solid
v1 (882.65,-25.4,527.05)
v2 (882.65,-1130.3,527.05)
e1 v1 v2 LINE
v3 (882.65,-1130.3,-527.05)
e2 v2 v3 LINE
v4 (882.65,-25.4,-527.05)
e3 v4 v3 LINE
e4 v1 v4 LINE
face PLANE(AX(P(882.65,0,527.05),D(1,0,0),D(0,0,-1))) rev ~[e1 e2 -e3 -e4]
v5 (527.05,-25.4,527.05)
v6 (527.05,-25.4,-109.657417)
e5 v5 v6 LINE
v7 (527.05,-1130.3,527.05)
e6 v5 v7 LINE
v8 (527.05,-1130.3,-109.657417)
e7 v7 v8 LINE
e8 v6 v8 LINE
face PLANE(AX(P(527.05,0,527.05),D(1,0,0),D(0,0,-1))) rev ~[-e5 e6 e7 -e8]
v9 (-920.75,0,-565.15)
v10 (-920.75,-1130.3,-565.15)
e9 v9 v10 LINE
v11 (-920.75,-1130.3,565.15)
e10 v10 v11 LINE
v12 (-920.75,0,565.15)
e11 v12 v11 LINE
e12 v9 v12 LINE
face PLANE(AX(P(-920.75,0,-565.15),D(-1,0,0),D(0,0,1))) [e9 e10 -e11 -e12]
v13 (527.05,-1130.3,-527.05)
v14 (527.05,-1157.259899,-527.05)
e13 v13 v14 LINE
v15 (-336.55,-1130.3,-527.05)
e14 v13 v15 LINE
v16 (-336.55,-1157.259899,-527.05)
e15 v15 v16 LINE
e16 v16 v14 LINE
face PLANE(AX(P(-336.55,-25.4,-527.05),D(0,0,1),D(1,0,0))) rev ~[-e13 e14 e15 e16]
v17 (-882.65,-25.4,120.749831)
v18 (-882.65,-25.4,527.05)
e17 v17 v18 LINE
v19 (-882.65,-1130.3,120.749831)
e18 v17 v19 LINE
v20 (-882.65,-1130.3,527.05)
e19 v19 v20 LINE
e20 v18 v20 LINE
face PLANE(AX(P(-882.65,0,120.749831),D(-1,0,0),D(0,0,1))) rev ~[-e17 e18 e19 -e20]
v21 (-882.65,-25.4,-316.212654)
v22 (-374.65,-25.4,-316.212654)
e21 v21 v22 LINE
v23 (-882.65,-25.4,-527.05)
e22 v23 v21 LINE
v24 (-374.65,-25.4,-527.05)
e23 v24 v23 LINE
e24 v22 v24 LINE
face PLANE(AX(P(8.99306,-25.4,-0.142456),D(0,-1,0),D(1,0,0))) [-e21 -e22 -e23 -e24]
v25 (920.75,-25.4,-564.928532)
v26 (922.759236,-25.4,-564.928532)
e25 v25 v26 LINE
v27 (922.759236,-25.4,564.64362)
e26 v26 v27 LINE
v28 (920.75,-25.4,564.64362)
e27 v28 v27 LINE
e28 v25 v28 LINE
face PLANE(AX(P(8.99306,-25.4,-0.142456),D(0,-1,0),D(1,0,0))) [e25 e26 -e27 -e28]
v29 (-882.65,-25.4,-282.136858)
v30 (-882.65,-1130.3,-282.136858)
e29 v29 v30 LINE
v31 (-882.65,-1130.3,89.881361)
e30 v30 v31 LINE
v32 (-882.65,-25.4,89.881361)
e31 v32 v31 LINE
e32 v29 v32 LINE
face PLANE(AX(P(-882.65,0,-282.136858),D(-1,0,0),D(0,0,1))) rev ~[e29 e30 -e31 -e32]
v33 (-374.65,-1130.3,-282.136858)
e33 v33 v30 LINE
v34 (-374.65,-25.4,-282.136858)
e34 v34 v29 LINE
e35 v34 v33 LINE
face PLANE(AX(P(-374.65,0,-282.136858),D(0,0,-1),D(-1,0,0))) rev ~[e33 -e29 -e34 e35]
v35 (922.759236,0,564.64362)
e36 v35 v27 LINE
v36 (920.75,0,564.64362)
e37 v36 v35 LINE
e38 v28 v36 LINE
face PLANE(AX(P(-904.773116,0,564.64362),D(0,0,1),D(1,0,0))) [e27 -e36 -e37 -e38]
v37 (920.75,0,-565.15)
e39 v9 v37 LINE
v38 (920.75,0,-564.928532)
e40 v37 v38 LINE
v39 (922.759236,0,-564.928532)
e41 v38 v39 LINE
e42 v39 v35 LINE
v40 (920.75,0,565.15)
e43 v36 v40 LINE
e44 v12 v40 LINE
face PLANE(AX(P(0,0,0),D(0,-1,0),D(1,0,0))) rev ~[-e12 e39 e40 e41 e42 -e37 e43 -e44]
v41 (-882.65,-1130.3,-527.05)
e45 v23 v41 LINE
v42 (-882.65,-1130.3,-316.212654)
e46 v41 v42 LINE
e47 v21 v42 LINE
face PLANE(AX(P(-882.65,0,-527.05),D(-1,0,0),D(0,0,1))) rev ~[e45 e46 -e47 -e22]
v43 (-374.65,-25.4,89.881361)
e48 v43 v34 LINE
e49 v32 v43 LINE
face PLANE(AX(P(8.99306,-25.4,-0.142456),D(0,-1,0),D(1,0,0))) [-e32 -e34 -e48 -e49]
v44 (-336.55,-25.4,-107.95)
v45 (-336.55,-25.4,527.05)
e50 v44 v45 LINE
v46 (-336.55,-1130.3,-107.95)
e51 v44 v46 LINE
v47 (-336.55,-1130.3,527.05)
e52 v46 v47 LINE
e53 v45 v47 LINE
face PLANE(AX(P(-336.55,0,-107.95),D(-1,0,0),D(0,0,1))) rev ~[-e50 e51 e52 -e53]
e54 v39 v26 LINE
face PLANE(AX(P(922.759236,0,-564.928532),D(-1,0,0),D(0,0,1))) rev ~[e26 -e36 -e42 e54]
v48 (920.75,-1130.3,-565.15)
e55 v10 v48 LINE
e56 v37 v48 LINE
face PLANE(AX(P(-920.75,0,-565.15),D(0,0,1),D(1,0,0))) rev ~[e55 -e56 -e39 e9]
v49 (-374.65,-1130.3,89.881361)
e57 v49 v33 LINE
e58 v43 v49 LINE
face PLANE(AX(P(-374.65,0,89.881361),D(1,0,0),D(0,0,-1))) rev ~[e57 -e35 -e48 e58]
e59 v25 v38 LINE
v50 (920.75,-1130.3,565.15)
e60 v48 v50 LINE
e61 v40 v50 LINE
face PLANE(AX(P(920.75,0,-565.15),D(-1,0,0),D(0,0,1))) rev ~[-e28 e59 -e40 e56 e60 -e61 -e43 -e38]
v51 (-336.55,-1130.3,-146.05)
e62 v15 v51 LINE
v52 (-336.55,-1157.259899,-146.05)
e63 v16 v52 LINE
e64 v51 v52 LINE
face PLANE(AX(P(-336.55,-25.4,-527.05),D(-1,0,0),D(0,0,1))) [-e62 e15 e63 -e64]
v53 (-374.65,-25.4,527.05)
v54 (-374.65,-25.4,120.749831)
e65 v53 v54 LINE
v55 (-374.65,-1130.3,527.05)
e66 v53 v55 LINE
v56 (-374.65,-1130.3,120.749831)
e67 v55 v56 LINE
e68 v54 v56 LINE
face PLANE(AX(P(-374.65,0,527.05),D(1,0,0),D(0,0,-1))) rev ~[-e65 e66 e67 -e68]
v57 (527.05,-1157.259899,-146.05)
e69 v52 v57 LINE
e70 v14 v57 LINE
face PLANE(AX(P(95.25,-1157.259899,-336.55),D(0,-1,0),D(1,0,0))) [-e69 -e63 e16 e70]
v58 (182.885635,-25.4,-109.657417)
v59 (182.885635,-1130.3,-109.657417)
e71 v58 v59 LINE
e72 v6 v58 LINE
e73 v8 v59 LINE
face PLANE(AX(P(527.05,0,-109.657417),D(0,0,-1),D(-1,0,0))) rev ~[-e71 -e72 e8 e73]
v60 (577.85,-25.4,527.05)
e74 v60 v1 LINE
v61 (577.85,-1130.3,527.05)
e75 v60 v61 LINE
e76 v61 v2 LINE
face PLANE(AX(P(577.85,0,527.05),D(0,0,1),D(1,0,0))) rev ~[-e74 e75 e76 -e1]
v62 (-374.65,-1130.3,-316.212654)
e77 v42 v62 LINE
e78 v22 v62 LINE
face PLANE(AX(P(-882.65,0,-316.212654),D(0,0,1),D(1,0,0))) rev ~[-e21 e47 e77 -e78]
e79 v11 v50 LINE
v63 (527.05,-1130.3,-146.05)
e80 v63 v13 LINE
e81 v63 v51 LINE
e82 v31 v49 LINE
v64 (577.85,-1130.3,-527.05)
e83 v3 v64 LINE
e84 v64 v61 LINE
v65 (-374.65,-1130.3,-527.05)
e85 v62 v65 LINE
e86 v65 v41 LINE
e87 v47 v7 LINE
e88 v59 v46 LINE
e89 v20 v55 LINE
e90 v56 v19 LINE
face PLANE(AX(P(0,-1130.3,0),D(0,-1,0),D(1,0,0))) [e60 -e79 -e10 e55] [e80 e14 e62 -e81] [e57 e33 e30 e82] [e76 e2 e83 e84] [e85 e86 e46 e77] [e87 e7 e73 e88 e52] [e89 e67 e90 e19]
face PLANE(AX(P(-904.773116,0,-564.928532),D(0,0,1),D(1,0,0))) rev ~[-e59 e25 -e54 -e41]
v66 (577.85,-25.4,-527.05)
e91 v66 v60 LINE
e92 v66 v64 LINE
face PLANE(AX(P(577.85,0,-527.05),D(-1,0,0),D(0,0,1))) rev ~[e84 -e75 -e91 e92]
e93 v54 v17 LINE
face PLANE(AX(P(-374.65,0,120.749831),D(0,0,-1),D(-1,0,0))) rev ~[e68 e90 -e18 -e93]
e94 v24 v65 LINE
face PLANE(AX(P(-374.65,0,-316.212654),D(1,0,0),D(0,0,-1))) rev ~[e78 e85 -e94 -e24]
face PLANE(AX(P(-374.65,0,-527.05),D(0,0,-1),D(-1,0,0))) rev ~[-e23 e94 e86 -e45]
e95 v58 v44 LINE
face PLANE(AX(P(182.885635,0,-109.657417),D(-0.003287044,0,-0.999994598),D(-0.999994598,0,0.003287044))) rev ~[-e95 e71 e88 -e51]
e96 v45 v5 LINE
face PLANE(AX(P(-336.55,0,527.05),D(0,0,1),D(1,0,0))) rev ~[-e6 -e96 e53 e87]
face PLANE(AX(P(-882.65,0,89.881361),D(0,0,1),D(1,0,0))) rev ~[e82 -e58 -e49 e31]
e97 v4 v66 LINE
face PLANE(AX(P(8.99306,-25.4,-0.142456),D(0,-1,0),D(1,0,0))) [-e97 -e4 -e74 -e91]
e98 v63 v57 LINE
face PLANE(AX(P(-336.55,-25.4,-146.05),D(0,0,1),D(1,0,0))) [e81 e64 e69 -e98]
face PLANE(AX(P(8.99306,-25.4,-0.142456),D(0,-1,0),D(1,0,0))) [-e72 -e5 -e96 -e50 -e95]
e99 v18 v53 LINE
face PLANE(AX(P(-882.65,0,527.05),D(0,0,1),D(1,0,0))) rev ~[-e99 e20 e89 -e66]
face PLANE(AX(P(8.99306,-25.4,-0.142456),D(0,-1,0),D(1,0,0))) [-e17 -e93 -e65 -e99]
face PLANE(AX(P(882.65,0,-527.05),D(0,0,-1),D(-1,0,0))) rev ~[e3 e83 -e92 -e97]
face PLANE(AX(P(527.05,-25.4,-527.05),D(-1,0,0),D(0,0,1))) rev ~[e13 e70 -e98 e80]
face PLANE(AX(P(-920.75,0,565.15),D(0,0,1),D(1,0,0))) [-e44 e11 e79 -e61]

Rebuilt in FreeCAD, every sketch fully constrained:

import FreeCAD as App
import Part
import Sketcher

V = App.Vector
Q = App.Units.Quantity

doc = App.newDocument("Part")
body = doc.addObject("PartDesign::Body", "Body")

# Sketch on XZ plane
sketch1 = body.newObject("Sketcher::SketchObject", "Sketch")
sketch1.AttachmentSupport = (doc.getObject("XZ_Plane"), [""])
sketch1.MapMode = "FlatFace"
sketch1.addGeometry([
    Part.LineSegment(V(-920.75, 565.15, 0), V(-920.75, -565.15, 0)),  # 0
    Part.LineSegment(V(-920.75, -565.15, 0), V(920.75, -565.15, 0)),  # 1
    Part.LineSegment(V(920.75, -565.15, 0), V(920.75, 565.15, 0)),  # 2
    Part.LineSegment(V(920.75, 565.15, 0), V(-920.75, 565.15, 0)),  # 3
    Part.LineSegment(V(-882.65, 527.05, 0), V(-374.65, 527.05, 0)),  # 4
    Part.LineSegment(V(-374.65, 527.05, 0), V(-374.65, 120.749831, 0)),  # 5
    Part.LineSegment(V(-374.65, 120.749831, 0), V(-882.65, 120.749831, 0)),  # 6
    Part.LineSegment(V(-882.65, 120.749831, 0), V(-882.65, 527.05, 0)),  # 7
    Part.LineSegment(V(-374.65, 89.881361, 0), V(-374.65, -282.136858, 0)),  # 8
    Part.LineSegment(V(-374.65, -282.136858, 0), V(-882.65, -282.136858, 0)),  # 9
    Part.LineSegment(V(-882.65, -282.136858, 0), V(-882.65, 89.881361, 0)),  # 10
    Part.LineSegment(V(-882.65, 89.881361, 0), V(-374.65, 89.881361, 0)),  # 11
    Part.LineSegment(V(-374.65, -316.212654, 0), V(-374.65, -527.05, 0)),  # 12
    Part.LineSegment(V(-374.65, -527.05, 0), V(-882.65, -527.05, 0)),  # 13
    Part.LineSegment(V(-882.65, -527.05, 0), V(-882.65, -316.212654, 0)),  # 14
    Part.LineSegment(V(-882.65, -316.212654, 0), V(-374.65, -316.212654, 0)),  # 15
    Part.LineSegment(V(-336.55, 527.05, 0), V(527.05, 527.05, 0)),  # 16
    Part.LineSegment(V(527.05, 527.05, 0), V(527.05, -109.657417, 0)),  # 17
    Part.LineSegment(V(527.05, -109.657417, 0), V(182.885635, -109.657417, 0)),  # 18
    Part.LineSegment(V(182.885635, -109.657417, 0), V(-336.55, -107.95, 0)),  # 19
    Part.LineSegment(V(-336.55, -107.95, 0), V(-336.55, 527.05, 0)),  # 20
    Part.LineSegment(V(577.85, 527.05, 0), V(882.65, 527.05, 0)),  # 21
    Part.LineSegment(V(882.65, 527.05, 0), V(882.65, -527.05, 0)),  # 22
    Part.LineSegment(V(882.65, -527.05, 0), V(577.85, -527.05, 0)),  # 23
    Part.LineSegment(V(577.85, -527.05, 0), V(577.85, 527.05, 0)),  # 24
    Part.LineSegment(V(527.05, -527.05, 0), V(-336.55, -527.05, 0)),  # 25
    Part.LineSegment(V(-336.55, -527.05, 0), V(-336.55, -146.05, 0)),  # 26
    Part.LineSegment(V(-336.55, -146.05, 0), V(182.885635, -147.757417, 0)),  # 27
    Part.LineSegment(V(182.885635, -147.757417, 0), V(527.05, -148.888707, 0)),  # 28
    Part.LineSegment(V(527.05, -148.888707, 0), V(527.05, -527.05, 0)),  # 29
], False)
sketch1.addConstraint([
    Sketcher.Constraint("Coincident", 0, 2, 1, 1),
    Sketcher.Constraint("Coincident", 1, 2, 2, 1),
    Sketcher.Constraint("Coincident", 2, 2, 3, 1),
    Sketcher.Constraint("Coincident", 3, 2, 0, 1),
    Sketcher.Constraint("Coincident", 4, 2, 5, 1),
    Sketcher.Constraint("Coincident", 5, 2, 6, 1),
    Sketcher.Constraint("Coincident", 6, 2, 7, 1),
    Sketcher.Constraint("Coincident", 7, 2, 4, 1),
    Sketcher.Constraint("Coincident", 8, 2, 9, 1),
    Sketcher.Constraint("Coincident", 9, 2, 10, 1),
    Sketcher.Constraint("Coincident", 10, 2, 11, 1),
    Sketcher.Constraint("Coincident", 11, 2, 8, 1),
    Sketcher.Constraint("Coincident", 12, 2, 13, 1),
    Sketcher.Constraint("Coincident", 13, 2, 14, 1),
    Sketcher.Constraint("Coincident", 14, 2, 15, 1),
    Sketcher.Constraint("Coincident", 15, 2, 12, 1),
    Sketcher.Constraint("Coincident", 16, 2, 17, 1),
    Sketcher.Constraint("Coincident", 17, 2, 18, 1),
    Sketcher.Constraint("Coincident", 18, 2, 19, 1),
    Sketcher.Constraint("Coincident", 19, 2, 20, 1),
    Sketcher.Constraint("Coincident", 20, 2, 16, 1),
    Sketcher.Constraint("Coincident", 21, 2, 22, 1),
    Sketcher.Constraint("Coincident", 22, 2, 23, 1),
    Sketcher.Constraint("Coincident", 23, 2, 24, 1),
    Sketcher.Constraint("Coincident", 24, 2, 21, 1),
    Sketcher.Constraint("Coincident", 25, 2, 26, 1),
    Sketcher.Constraint("Coincident", 26, 2, 27, 1),
    Sketcher.Constraint("Coincident", 27, 2, 28, 1),
    Sketcher.Constraint("Coincident", 28, 2, 29, 1),
    Sketcher.Constraint("Coincident", 29, 2, 25, 1),
    Sketcher.Constraint("Vertical", 0),
    Sketcher.Constraint("Horizontal", 1),
    Sketcher.Constraint("Vertical", 2),
    Sketcher.Constraint("Horizontal", 3),
    Sketcher.Constraint("Horizontal", 4),
    Sketcher.Constraint("Vertical", 5),
    Sketcher.Constraint("Horizontal", 6),
    Sketcher.Constraint("Vertical", 7),
    Sketcher.Constraint("Vertical", 8),
    Sketcher.Constraint("Horizontal", 9),
    Sketcher.Constraint("Vertical", 10),
    Sketcher.Constraint("Horizontal", 11),
    Sketcher.Constraint("Vertical", 12),
    Sketcher.Constraint("Horizontal", 13),
    Sketcher.Constraint("Vertical", 14),
    Sketcher.Constraint("Horizontal", 15),
    Sketcher.Constraint("Horizontal", 16),
    Sketcher.Constraint("Vertical", 17),
    Sketcher.Constraint("Horizontal", 18),
    Sketcher.Constraint("Vertical", 20),
    Sketcher.Constraint("Horizontal", 21),
    Sketcher.Constraint("Vertical", 22),
    Sketcher.Constraint("Horizontal", 23),
    Sketcher.Constraint("Vertical", 24),
    Sketcher.Constraint("Horizontal", 25),
    Sketcher.Constraint("Vertical", 26),
    Sketcher.Constraint("Vertical", 29),
    Sketcher.Constraint("Symmetric", 0, 2, 2, 2, -1, 1),
    Sketcher.Constraint("Symmetric", 13, 2, 21, 2, -1, 1),
    Sketcher.Constraint("Symmetric", 7, 2, 22, 2, -1, 1),
    Sketcher.Constraint("Symmetric", 4, 2, 12, 2, -1),
    Sketcher.Constraint("Symmetric", 20, 2, 25, 2, -1),
    Sketcher.Constraint("Parallel", 19, 27),
    Sketcher.Constraint("Parallel", 27, 28),
    Sketcher.Constraint("Horizontal", 7, 2, 16, 2),
    Sketcher.Constraint("Vertical", 5, 2, 8, 2),
    Sketcher.Constraint("Vertical", 7, 2, 9, 2),
    Sketcher.Constraint("Vertical", 18, 2, 27, 2),
    Sketcher.Constraint("Vertical", 17, 2, 28, 2),
    Sketcher.Constraint("DistanceX", 4, 1, 4, 2, Q("20 in")),
    Sketcher.Constraint("DistanceX", 16, 1, 16, 2, Q("34 in")),
    Sketcher.Constraint("DistanceX", 21, 1, 21, 2, Q("12 in")),
    Sketcher.Constraint("DistanceY", 20, 1, 20, 2, Q("25 in")),
    Sketcher.Constraint("DistanceY", 26, 1, 26, 2, Q("15 in")),
    Sketcher.Constraint("DistanceX", 1, 1, 1, 2, Q("72.5 in")),
    Sketcher.Constraint("DistanceY", 0, 2, 0, 1, Q("44.5 in")),
    Sketcher.Constraint("DistanceY", 22, 2, 22, 1, Q("41.5 in")),
    Sketcher.Constraint("DistanceX", 4, 2, 2, 2, Q("51 in")),
    Sketcher.Constraint("DistanceX", 3, 2, 20, 2, Q("23 in")),
    Sketcher.Constraint("DistanceY", 5, 2, 5, 1, Q("406.300169 mm")),
    Sketcher.Constraint("DistanceY", 8, 2, 8, 1, Q("372.018219 mm")),
    Sketcher.Constraint("Distance", 19, Q("519.438441 mm")),
    Sketcher.Constraint("DistanceY", 12, 2, 12, 1, Q("210.837346 mm")),
    Sketcher.Constraint("DistanceY", 17, 2, 17, 1, Q("636.707417 mm")),
    Sketcher.Constraint("DistanceY", 8, 2, -1, 1, Q("282.136858 mm")),
])
pad1 = body.newObject("PartDesign::Pad", "Pad")
pad1.Profile = sketch1
pad1.Length = Q("44.5 in")

# Sketch on XZ plane
sketch2 = body.newObject("Sketcher::SketchObject", "Sketch001")
sketch2.AttachmentSupport = (doc.getObject("XZ_Plane"), [""])
sketch2.MapMode = "FlatFace"
sketch2.addGeometry([
    Part.LineSegment(V(-904.773116, 564.64362, 0), V(-904.773116, -564.928532, 0)),
    Part.LineSegment(V(-904.773116, -564.928532, 0), V(922.759236, -564.928532, 0)),
    Part.LineSegment(V(922.759236, -564.928532, 0), V(922.759236, 564.64362, 0)),
    Part.LineSegment(V(922.759236, 564.64362, 0), V(-904.773116, 564.64362, 0)),
], False)
sketch2.addConstraint([
    Sketcher.Constraint("Coincident", 0, 2, 1, 1),
    Sketcher.Constraint("Coincident", 1, 2, 2, 1),
    Sketcher.Constraint("Coincident", 2, 2, 3, 1),
    Sketcher.Constraint("Coincident", 3, 2, 0, 1),
    Sketcher.Constraint("Vertical", 0),
    Sketcher.Constraint("Horizontal", 1),
    Sketcher.Constraint("Vertical", 2),
    Sketcher.Constraint("Horizontal", 3),
    Sketcher.Constraint("DistanceX", 1, 1, 1, 2, Q("1827.532351 mm")),
    Sketcher.Constraint("DistanceY", 0, 2, 0, 1, Q("1129.572153 mm")),
    Sketcher.Constraint("DistanceY", -1, 1, 2, 2, Q("564.64362 mm")),
    Sketcher.Constraint("DistanceX", 0, 2, -1, 1, Q("904.773116 mm")),
])
pad2 = body.newObject("PartDesign::Pad", "Pad001")
pad2.Profile = sketch2
pad2.Length = Q("1 in")

# Sketch on XZ plane
sketch3 = body.newObject("Sketcher::SketchObject", "Sketch002")
sketch3.AttachmentSupport = (doc.getObject("XZ_Plane"), [""])
sketch3.MapMode = "FlatFace"
sketch3.AttachmentOffset = App.Placement(V(0, 0, 1 * 25.4), App.Rotation())
sketch3.addGeometry([
    Part.LineSegment(V(-337.893128, -155.063777, 0), V(-337.893128, -531.422377, 0)),
    Part.LineSegment(V(-337.893128, -531.422377, 0), V(527.463912, -531.422377, 0)),
    Part.LineSegment(V(527.463912, -531.422377, 0), V(527.463912, -155.063777, 0)),
    Part.LineSegment(V(527.463912, -155.063777, 0), V(-337.893128, -155.063777, 0)),
], False)
sketch3.addConstraint([
    Sketcher.Constraint("Coincident", 0, 2, 1, 1),
    Sketcher.Constraint("Coincident", 1, 2, 2, 1),
    Sketcher.Constraint("Coincident", 2, 2, 3, 1),
    Sketcher.Constraint("Coincident", 3, 2, 0, 1),
    Sketcher.Constraint("Vertical", 0),
    Sketcher.Constraint("Horizontal", 1),
    Sketcher.Constraint("Vertical", 2),
    Sketcher.Constraint("Horizontal", 3),
    Sketcher.Constraint("DistanceY", 0, 2, 0, 1, Q("376.358599 mm")),
    Sketcher.Constraint("DistanceX", 1, 1, 1, 2, Q("865.357041 mm")),
    Sketcher.Constraint("DistanceX", 0, 2, -1, 1, Q("337.893128 mm")),
    Sketcher.Constraint("DistanceY", 0, 2, -1, 1, Q("531.422377 mm")),
])
pad3 = body.newObject("PartDesign::Pad", "Pad002")
pad3.Profile = sketch3
pad3.Length = Q("1 in")
pad3.Reversed = True

# Sketch on XZ plane
sketch4 = body.newObject("Sketcher::SketchObject", "Sketch003")
sketch4.AttachmentSupport = (doc.getObject("XZ_Plane"), [""])
sketch4.MapMode = "FlatFace"
sketch4.AttachmentOffset = App.Placement(V(0, 0, 1 * 25.4), App.Rotation())
sketch4.addGeometry([
    Part.LineSegment(V(-281.069697, -181.134434, 0), V(-281.069697, -563.431979, 0)),
    Part.LineSegment(V(-281.069697, -563.431979, 0), V(550.321936, -563.431979, 0)),
    Part.LineSegment(V(550.321936, -563.431979, 0), V(550.321936, -181.134434, 0)),
    Part.LineSegment(V(550.321936, -181.134434, 0), V(-281.069697, -181.134434, 0)),
], False)
sketch4.addConstraint([
    Sketcher.Constraint("Coincident", 0, 2, 1, 1),
    Sketcher.Constraint("Coincident", 1, 2, 2, 1),
    Sketcher.Constraint("Coincident", 2, 2, 3, 1),
    Sketcher.Constraint("Coincident", 3, 2, 0, 1),
    Sketcher.Constraint("Vertical", 0),
    Sketcher.Constraint("Horizontal", 1),
    Sketcher.Constraint("Vertical", 2),
    Sketcher.Constraint("Horizontal", 3),
    Sketcher.Constraint("DistanceX", 1, 1, 1, 2, Q("831.391633 mm")),
    Sketcher.Constraint("DistanceY", 0, 2, 0, 1, Q("382.297545 mm")),
    Sketcher.Constraint("DistanceY", 0, 2, -1, 1, Q("563.431979 mm")),
    Sketcher.Constraint("DistanceX", 0, 2, -1, 1, Q("281.069697 mm")),
])
pad4 = body.newObject("PartDesign::Pad", "Pad003")
pad4.Profile = sketch4
pad4.Length = Q("1 in")
pad4.Reversed = True

# Sketch on XZ plane
sketch5 = body.newObject("Sketcher::SketchObject", "Sketch004")
sketch5.AttachmentSupport = (doc.getObject("XZ_Plane"), [""])
sketch5.MapMode = "FlatFace"
sketch5.AttachmentOffset = App.Placement(V(0, 0, 1 * 25.4), App.Rotation())
sketch5.addGeometry([
    Part.LineSegment(V(-336.55, -146.05, 0), V(-336.55, -527.05, 0)),
    Part.LineSegment(V(-336.55, -527.05, 0), V(527.05, -527.05, 0)),
    Part.LineSegment(V(527.05, -527.05, 0), V(527.05, -146.05, 0)),
    Part.LineSegment(V(527.05, -146.05, 0), V(-336.55, -146.05, 0)),
], False)
sketch5.addConstraint([
    Sketcher.Constraint("Coincident", 0, 2, 1, 1),
    Sketcher.Constraint("Coincident", 1, 2, 2, 1),
    Sketcher.Constraint("Coincident", 2, 2, 3, 1),
    Sketcher.Constraint("Coincident", 3, 2, 0, 1),
    Sketcher.Constraint("Vertical", 0),
    Sketcher.Constraint("Horizontal", 1),
    Sketcher.Constraint("Vertical", 2),
    Sketcher.Constraint("Horizontal", 3),
    Sketcher.Constraint("DistanceX", 1, 1, 1, 2, Q("34 in")),
    Sketcher.Constraint("DistanceY", 0, 2, 0, 1, Q("15 in")),
    Sketcher.Constraint("DistanceX", 0, 2, -1, 1, Q("13.25 in")),
    Sketcher.Constraint("DistanceY", 0, 2, -1, 1, Q("20.75 in")),
])
pad5 = body.newObject("PartDesign::Pad", "Pad004")
pad5.Profile = sketch5
pad5.Length = 1131.859899

doc.recompute()
